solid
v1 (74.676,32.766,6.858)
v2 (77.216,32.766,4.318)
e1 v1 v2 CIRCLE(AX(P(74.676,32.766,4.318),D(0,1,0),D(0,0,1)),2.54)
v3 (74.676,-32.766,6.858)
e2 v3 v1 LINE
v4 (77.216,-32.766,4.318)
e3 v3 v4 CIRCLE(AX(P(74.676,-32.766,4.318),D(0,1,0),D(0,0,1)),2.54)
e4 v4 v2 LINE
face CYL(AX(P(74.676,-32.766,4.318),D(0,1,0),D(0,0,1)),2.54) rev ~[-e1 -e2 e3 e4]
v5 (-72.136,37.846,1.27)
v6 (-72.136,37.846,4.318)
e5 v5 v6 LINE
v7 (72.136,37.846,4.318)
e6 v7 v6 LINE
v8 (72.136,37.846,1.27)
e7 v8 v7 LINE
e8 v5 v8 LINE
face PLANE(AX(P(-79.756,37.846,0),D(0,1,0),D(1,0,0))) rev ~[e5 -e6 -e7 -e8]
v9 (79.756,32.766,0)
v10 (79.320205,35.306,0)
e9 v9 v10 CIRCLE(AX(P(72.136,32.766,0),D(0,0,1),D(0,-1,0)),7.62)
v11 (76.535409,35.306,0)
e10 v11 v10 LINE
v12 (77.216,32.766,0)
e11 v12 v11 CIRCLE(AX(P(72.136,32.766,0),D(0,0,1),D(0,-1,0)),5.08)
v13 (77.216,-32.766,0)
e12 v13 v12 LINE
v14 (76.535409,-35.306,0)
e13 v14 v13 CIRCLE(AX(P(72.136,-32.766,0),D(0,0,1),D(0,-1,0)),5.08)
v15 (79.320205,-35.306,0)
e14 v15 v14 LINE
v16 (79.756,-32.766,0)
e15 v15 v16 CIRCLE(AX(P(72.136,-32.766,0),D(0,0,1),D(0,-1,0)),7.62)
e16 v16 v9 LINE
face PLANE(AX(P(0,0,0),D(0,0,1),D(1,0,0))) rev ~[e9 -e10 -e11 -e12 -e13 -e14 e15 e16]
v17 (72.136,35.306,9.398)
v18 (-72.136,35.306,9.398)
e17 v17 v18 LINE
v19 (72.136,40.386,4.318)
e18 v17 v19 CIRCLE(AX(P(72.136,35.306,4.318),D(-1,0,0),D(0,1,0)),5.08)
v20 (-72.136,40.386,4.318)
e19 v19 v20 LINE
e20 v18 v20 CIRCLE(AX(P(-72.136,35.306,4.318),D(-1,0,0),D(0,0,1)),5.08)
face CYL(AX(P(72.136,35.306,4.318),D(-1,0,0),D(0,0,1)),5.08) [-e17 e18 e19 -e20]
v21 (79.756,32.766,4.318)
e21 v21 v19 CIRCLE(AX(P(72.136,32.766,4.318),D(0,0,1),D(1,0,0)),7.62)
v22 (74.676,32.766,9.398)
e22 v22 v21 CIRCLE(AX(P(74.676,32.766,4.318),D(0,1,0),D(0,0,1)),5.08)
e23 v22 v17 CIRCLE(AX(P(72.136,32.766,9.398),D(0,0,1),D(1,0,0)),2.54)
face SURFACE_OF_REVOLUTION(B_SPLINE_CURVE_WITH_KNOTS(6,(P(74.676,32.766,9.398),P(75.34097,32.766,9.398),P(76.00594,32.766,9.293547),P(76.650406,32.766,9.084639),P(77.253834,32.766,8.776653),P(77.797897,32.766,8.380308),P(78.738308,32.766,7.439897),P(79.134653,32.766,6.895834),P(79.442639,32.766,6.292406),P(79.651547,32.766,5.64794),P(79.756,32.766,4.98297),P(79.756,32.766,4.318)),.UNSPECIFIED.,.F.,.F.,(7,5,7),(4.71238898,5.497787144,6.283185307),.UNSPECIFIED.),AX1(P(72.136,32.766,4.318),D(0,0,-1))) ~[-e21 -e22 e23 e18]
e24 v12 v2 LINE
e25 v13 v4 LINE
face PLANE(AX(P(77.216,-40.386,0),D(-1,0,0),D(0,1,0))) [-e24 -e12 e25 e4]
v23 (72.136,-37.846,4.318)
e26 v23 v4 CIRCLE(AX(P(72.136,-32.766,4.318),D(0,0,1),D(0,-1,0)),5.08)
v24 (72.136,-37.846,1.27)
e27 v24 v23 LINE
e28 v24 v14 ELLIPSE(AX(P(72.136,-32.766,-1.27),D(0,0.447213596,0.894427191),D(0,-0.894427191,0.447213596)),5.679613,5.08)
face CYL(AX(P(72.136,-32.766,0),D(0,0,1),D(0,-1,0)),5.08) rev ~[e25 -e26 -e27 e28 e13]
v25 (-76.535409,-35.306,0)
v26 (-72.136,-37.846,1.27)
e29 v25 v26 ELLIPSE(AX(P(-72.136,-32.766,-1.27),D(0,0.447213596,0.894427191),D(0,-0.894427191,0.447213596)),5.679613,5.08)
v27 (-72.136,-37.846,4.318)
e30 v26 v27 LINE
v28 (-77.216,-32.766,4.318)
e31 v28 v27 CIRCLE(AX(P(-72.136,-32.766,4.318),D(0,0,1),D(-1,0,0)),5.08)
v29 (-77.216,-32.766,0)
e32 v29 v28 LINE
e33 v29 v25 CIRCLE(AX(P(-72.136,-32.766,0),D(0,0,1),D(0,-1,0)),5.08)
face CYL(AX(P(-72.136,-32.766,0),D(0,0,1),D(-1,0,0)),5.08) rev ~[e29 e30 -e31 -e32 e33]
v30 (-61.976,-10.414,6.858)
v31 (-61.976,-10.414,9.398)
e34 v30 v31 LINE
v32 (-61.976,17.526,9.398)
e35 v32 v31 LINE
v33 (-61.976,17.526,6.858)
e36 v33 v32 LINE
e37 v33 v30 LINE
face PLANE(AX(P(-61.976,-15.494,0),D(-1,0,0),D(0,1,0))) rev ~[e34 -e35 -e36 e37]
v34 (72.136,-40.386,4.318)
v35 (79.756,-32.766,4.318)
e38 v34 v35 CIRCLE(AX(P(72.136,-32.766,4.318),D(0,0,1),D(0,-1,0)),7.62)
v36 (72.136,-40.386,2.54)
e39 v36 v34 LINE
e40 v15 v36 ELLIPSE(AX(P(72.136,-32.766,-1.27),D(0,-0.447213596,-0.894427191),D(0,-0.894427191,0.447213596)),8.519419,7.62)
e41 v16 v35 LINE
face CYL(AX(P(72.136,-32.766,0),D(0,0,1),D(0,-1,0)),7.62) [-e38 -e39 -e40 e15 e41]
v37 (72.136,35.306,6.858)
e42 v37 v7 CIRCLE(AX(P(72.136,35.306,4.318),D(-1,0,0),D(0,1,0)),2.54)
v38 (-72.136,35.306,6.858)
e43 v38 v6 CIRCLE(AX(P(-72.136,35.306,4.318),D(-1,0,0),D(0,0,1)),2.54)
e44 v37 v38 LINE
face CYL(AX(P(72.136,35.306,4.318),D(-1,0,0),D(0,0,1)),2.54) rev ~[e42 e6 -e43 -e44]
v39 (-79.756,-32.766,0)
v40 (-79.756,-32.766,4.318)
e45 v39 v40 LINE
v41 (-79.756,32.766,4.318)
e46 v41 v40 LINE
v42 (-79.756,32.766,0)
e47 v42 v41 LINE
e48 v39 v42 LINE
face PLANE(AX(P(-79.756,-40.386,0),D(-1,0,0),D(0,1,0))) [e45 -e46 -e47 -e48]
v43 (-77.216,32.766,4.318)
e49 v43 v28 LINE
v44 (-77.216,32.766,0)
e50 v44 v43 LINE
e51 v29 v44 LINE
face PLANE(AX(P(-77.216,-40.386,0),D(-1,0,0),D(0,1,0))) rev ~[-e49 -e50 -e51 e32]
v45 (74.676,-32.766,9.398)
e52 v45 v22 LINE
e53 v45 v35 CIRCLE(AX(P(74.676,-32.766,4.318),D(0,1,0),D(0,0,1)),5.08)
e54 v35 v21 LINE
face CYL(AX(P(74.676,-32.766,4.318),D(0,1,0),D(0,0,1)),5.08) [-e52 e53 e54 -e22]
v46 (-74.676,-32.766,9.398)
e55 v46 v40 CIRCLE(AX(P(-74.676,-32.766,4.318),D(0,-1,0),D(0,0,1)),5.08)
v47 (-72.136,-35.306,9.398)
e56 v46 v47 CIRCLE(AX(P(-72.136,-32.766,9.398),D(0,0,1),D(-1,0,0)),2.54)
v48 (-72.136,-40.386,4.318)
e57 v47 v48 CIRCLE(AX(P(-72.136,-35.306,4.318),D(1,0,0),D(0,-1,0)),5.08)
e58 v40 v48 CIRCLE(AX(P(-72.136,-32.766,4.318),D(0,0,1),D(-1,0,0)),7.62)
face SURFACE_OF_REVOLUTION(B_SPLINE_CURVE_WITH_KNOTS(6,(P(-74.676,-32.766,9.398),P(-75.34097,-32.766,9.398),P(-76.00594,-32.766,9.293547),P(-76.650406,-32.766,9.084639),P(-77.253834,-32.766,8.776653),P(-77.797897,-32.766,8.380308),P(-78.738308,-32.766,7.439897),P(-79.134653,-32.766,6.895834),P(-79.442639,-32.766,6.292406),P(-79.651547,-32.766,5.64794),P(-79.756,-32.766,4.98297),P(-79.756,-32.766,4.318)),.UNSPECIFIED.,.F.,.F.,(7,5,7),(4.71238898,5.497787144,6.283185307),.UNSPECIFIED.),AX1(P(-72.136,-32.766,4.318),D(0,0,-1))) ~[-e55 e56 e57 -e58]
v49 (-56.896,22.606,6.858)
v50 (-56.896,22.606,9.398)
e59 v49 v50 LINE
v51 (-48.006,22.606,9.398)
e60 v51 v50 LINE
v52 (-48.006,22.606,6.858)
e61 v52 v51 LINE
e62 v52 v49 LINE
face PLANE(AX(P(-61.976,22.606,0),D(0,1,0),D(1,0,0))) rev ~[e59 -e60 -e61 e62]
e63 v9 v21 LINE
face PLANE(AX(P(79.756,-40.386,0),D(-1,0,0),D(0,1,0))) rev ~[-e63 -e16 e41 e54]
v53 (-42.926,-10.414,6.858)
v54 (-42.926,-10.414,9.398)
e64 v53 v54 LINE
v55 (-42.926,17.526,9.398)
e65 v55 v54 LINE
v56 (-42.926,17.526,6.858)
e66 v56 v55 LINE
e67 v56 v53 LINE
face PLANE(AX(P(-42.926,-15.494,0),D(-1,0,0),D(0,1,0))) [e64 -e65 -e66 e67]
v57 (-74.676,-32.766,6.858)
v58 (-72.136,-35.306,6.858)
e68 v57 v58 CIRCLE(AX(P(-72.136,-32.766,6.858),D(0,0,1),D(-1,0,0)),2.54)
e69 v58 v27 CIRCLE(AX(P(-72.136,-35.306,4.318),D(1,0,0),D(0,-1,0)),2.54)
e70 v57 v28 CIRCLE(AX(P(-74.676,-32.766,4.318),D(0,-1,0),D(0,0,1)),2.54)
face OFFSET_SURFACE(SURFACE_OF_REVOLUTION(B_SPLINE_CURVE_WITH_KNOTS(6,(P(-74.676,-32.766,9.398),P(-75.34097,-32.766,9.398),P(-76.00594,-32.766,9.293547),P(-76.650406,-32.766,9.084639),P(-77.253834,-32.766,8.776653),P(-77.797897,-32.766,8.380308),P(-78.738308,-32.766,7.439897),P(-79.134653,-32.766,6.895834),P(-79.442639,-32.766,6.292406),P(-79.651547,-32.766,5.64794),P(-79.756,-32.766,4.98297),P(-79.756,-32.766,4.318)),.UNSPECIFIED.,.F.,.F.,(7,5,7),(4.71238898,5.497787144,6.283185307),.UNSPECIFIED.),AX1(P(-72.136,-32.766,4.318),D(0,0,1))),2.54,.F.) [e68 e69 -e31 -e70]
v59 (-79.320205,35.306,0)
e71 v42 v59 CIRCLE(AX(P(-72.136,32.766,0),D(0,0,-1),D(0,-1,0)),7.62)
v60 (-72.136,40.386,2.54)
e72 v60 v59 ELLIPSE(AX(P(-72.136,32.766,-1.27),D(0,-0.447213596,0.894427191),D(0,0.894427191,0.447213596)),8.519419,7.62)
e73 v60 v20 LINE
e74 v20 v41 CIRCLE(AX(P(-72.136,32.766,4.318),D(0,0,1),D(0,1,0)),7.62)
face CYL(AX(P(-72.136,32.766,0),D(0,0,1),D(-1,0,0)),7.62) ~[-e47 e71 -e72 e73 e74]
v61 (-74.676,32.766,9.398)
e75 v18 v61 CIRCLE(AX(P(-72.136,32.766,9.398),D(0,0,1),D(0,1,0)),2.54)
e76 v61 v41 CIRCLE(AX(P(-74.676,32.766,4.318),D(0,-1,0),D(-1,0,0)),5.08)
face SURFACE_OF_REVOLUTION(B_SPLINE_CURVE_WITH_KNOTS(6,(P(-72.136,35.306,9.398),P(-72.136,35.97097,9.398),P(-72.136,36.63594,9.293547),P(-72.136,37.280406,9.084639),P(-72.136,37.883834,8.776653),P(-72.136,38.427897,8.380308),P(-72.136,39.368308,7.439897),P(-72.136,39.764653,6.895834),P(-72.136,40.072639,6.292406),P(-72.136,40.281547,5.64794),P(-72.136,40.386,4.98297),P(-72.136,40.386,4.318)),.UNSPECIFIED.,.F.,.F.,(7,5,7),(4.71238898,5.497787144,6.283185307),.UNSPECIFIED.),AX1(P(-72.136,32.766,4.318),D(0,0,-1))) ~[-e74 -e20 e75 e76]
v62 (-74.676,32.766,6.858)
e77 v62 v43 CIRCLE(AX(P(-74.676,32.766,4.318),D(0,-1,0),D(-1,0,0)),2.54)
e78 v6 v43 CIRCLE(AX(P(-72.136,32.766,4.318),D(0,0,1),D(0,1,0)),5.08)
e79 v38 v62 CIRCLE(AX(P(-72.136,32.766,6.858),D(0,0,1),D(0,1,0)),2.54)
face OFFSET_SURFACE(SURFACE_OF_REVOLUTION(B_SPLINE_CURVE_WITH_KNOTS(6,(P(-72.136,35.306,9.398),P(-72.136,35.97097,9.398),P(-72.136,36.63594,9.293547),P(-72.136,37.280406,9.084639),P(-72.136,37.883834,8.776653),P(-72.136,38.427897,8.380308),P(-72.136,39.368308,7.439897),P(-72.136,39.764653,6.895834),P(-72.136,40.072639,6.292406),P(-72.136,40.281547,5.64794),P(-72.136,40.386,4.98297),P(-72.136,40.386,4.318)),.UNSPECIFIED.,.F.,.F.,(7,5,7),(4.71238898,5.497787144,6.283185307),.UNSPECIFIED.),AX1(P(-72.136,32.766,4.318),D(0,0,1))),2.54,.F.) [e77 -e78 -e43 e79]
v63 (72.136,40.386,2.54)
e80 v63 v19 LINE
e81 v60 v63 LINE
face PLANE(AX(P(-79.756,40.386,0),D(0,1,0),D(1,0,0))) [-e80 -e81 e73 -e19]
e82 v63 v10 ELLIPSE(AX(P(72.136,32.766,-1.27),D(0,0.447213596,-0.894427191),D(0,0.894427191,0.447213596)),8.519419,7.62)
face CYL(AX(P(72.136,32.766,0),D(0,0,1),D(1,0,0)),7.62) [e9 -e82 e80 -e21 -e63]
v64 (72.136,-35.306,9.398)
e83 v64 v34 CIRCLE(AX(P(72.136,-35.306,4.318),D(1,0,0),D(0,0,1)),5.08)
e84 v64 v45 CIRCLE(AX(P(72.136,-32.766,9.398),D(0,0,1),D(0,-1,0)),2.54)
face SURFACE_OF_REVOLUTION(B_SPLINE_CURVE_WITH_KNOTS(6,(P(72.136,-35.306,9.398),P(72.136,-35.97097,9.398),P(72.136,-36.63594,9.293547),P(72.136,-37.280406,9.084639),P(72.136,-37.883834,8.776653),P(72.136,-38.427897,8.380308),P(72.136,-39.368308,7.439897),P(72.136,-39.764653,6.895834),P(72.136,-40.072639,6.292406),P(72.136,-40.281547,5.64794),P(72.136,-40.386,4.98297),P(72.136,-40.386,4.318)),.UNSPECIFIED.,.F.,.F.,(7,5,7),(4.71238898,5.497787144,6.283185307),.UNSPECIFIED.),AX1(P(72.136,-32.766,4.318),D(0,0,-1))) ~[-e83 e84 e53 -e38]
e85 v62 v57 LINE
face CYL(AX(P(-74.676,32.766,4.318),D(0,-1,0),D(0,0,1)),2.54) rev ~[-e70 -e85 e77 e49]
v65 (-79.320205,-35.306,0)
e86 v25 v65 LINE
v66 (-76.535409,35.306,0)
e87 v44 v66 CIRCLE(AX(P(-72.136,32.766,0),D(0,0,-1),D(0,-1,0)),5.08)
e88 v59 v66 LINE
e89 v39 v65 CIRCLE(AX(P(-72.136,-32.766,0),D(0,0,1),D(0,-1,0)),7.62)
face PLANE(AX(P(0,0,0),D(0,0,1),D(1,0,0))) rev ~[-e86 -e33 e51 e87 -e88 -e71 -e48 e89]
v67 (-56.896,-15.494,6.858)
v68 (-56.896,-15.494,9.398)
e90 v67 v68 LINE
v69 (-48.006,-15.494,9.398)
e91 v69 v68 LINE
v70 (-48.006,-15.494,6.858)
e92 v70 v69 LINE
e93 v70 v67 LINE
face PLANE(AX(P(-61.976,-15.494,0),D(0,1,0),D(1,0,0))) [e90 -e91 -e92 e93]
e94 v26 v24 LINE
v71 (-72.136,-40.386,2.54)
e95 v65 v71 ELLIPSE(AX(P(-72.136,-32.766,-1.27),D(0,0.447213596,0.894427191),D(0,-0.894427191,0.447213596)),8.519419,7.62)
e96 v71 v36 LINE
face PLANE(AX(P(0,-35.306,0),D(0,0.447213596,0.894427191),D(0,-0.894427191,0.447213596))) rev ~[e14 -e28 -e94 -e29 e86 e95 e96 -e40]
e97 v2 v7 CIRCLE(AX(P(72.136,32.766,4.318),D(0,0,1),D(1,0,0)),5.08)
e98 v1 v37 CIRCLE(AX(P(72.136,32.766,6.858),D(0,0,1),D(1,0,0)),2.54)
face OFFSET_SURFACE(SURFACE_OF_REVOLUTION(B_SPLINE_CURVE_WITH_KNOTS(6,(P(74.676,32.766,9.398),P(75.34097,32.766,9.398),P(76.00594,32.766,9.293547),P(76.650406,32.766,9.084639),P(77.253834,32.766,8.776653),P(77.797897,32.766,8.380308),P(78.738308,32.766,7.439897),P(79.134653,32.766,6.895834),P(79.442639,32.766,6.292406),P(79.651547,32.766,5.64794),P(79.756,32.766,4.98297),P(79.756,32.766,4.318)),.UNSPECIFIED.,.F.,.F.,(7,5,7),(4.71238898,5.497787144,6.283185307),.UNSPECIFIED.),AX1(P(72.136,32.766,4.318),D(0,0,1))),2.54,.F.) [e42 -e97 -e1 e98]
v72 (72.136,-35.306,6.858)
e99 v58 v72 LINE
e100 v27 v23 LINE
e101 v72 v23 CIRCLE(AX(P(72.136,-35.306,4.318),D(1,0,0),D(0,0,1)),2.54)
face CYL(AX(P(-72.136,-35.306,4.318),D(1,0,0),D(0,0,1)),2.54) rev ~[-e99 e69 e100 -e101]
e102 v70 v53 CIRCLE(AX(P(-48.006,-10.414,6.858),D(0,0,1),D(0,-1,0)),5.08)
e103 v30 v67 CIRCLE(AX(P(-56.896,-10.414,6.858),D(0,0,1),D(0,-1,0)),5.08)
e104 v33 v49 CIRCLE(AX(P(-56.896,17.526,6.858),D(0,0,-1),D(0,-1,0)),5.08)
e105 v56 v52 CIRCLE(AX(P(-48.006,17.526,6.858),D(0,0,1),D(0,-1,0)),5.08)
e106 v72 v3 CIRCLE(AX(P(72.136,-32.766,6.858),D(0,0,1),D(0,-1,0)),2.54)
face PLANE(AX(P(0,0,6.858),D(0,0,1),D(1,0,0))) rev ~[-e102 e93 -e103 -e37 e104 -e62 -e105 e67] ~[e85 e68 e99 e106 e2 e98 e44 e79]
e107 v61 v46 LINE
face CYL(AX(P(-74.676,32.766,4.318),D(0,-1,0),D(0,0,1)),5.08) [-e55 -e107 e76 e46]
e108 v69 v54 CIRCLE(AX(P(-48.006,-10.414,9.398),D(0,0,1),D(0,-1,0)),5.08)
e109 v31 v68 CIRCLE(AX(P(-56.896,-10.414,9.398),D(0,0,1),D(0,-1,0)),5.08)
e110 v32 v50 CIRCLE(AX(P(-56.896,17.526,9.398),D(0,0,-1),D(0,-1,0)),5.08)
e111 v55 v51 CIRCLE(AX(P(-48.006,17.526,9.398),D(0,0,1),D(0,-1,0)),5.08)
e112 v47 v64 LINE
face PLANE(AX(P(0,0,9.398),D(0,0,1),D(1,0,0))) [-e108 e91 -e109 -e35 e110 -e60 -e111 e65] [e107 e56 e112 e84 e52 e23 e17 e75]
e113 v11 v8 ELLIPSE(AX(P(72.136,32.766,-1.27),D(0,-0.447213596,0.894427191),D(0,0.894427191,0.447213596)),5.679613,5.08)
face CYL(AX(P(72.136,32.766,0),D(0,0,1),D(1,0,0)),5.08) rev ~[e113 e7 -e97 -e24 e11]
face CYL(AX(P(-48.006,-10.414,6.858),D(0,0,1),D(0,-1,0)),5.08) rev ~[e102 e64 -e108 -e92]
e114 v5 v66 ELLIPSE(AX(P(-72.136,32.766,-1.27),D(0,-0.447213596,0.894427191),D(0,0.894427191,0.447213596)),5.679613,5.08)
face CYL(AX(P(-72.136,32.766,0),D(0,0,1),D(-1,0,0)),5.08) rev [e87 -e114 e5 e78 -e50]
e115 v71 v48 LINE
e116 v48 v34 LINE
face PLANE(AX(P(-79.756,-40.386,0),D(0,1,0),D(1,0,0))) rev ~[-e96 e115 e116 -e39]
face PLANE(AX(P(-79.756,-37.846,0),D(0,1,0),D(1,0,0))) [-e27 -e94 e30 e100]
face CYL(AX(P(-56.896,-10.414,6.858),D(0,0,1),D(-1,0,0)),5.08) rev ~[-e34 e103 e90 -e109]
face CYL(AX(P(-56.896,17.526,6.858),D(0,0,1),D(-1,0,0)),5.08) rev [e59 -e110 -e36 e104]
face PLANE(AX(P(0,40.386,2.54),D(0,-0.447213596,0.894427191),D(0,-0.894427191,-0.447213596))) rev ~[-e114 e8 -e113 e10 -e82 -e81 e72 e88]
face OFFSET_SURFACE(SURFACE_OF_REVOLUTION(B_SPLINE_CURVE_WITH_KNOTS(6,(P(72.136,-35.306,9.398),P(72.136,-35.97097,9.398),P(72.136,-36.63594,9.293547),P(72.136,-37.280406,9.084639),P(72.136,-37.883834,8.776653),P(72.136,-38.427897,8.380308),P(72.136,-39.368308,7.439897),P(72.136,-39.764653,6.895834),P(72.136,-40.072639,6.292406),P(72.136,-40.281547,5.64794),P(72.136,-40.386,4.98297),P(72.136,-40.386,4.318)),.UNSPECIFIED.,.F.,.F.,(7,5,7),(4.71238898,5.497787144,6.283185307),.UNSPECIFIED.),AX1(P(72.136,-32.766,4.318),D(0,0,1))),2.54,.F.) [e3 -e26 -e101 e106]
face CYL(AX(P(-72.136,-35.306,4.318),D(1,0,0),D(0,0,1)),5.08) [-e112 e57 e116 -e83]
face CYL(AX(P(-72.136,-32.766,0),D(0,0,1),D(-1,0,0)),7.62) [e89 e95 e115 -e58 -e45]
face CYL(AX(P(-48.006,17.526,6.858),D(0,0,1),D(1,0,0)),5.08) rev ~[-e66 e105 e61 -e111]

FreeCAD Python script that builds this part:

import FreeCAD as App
import Part
import Sketcher
from FreeCAD import Vector
Q = App.Units.Quantity


def edges_at(feature, points):
    """Names of the edges that pass closest to the given points."""
    edges = feature.Shape.Edges
    near = lambda p: min(range(len(edges)), key=lambda i: edges[i].distToShape(Part.Vertex(*p))[0])
    return sorted({f"Edge{near(p) + 1}" for p in points})


def faces_at(feature, points):
    """Names of the faces that lie closest to the given points."""
    faces = feature.Shape.Faces
    near = lambda p: min(range(len(faces)), key=lambda i: faces[i].distToShape(Part.Vertex(*p))[0])
    return sorted({f"Face{near(p) + 1}" for p in points})


def add_polygon(sketch, points):
    """Adds a closed chain of lines whose ends are joined by coincident constraints."""
    first, n = sketch.GeometryCount, len(points)
    for a, b in zip(points, points[1:] + points[:1]):
        sketch.addGeometry(Part.LineSegment(App.Vector(*a, 0), App.Vector(*b, 0)), False)
    for i in range(n):
        sketch.addConstraint(Sketcher.Constraint("Coincident", first + i, 2, first + (i + 1) % n, 1))

doc = App.newDocument("Part")
body = doc.addObject("PartDesign::Body", "Body")

# Sketch on XY plane
sketch1 = doc.addObject("Sketcher::SketchObject", "Sketch")
body.addObject(sketch1)
sketch1.AttachmentSupport = (doc.XY_Plane, [""])
sketch1.MapMode = "FlatFace"
add_polygon(sketch1, [(-80, 40), (-80, -40), (80, -40), (80, 40)])  # lines 0-3
sketch1.addConstraint([
    Sketcher.Constraint("Vertical", 0),
    Sketcher.Constraint("Horizontal", 1),
    Sketcher.Constraint("Vertical", 2),
    Sketcher.Constraint("Horizontal", 3),
    Sketcher.Constraint("Symmetric", 0, 2, 2, 2, -1, 1),
    Sketcher.Constraint("DistanceX", 1, 1, 1, 2, Q("6.28 in")),
    Sketcher.Constraint("DistanceY", 0, 2, 0, 1, Q("3.18 in")),
])
pad1 = doc.addObject("PartDesign::Pad", "Pad")
body.addObject(pad1)
pad1.Profile = sketch1
pad1.Length = Q("0.37 in")
doc.recompute()

fillet = doc.addObject("PartDesign::Fillet", "Fillet")
body.addObject(fillet)
fillet.Base = (pad1, edges_at(pad1, [
    (79.756, -40.386, 4.699),
    (79.756, 40.386, 4.699),
    (-79.756, -40.386, 4.699),
    (-79.756, 40.386, 4.699),
]))
fillet.Radius = Q("0.3 in")
doc.recompute()

fillet2 = doc.addObject("PartDesign::Fillet", "Fillet001")
body.addObject(fillet2)
fillet2.Base = (fillet, edges_at(fillet, [
    (79.756, 0, 9.398),
    (77.524, -38.154, 9.398),
    (77.524, 38.154, 9.398),
    (0, -40.386, 9.398),
    (0, 40.386, 9.398),
    (-77.524, -38.154, 9.398),
    (-77.524, 38.154, 9.398),
    (-79.756, 0, 9.398),
]))
fillet2.Radius = Q("0.2 in")

# Sketch on YZ plane
sketch2 = doc.addObject("Sketcher::SketchObject", "Sketch001")
body.addObject(sketch2)
sketch2.AttachmentSupport = (doc.YZ_Plane, [""])
sketch2.MapMode = "FlatFace"
add_polygon(sketch2, [(35.3, 0), (40.4, 0), (40.4, 2.5)])  # lines 0-2
add_polygon(sketch2, [(-40.4, 0), (-35.3, 0), (-40.4, 2.5)])  # lines 3-5
sketch2.addConstraint([
    Sketcher.Constraint("Horizontal", 0),
    Sketcher.Constraint("Vertical", 1),
    Sketcher.Constraint("Horizontal", 3),
    Sketcher.Constraint("Vertical", 5),
    Sketcher.Constraint("Symmetric", 2, 2, 3, 2, -1, 1),
    Sketcher.Constraint("Symmetric", 1, 2, 4, 2, -2),
    Sketcher.Constraint("PointOnObject", 0, 2, -1),
    Sketcher.Constraint("DistanceX", 0, 1, 0, 2, Q("0.2 in")),
    Sketcher.Constraint("DistanceY", 1, 1, 1, 2, Q("0.1 in")),
    Sketcher.Constraint("DistanceX", -1, 1, 0, 2, Q("1.59 in")),
])
pocket1 = doc.addObject("PartDesign::Pocket", "Pocket")
body.addObject(pocket1)
pocket1.Profile = sketch2
pocket1.Type = "ThroughAll"
pocket1.Midplane = True
doc.recompute()

thickness = doc.addObject("PartDesign::Thickness", "Thickness")
body.addObject(thickness)
thickness.Base = (pocket1, faces_at(pocket1, [(0, -37.846, 1.27), (0, 37.846, 1.27), (0, 0, 0)]))
thickness.Value = Q("0.1 in")
thickness.Reversed = True
thickness.Join = "Arc"

# Sketch on XY plane
sketch3 = doc.addObject("Sketcher::SketchObject", "Sketch002")
body.addObject(sketch3)
sketch3.AttachmentSupport = (doc.XY_Plane, [""])
sketch3.MapMode = "FlatFace"
add_polygon(sketch3, [(-62, 23), (-62, -15), (-43, -15), (-43, 23)])  # lines 0-3
sketch3.addConstraint([
    Sketcher.Constraint("Vertical", 0),
    Sketcher.Constraint("Horizontal", 1),
    Sketcher.Constraint("Vertical", 2),
    Sketcher.Constraint("Horizontal", 3),
    Sketcher.Constraint("DistanceY", 0, 2, 0, 1, Q("1.5 in")),
    Sketcher.Constraint("DistanceX", 1, 1, 1, 2, Q("0.75 in")),
    Sketcher.Constraint("DistanceX", 0, 2, -1, 1, Q("2.44 in")),
    Sketcher.Constraint("DistanceY", 0, 2, -1, 1, Q("0.61 in")),
])
pocket2 = doc.addObject("PartDesign::Pocket", "Pocket001")
body.addObject(pocket2)
pocket2.Profile = sketch3
pocket2.Length = Q("1.2 in")
pocket2.Reversed = True
doc.recompute()

fillet3 = doc.addObject("PartDesign::Fillet", "Fillet002")
body.addObject(fillet3)
fillet3.Base = (pocket2, edges_at(pocket2, [
    (-61.976, -15.494, 8.128),
    (-42.926, -15.494, 8.128),
    (-61.976, 22.606, 8.128),
    (-42.926, 22.606, 8.128),
]))
fillet3.Radius = Q("0.2 in")

doc.recompute()
